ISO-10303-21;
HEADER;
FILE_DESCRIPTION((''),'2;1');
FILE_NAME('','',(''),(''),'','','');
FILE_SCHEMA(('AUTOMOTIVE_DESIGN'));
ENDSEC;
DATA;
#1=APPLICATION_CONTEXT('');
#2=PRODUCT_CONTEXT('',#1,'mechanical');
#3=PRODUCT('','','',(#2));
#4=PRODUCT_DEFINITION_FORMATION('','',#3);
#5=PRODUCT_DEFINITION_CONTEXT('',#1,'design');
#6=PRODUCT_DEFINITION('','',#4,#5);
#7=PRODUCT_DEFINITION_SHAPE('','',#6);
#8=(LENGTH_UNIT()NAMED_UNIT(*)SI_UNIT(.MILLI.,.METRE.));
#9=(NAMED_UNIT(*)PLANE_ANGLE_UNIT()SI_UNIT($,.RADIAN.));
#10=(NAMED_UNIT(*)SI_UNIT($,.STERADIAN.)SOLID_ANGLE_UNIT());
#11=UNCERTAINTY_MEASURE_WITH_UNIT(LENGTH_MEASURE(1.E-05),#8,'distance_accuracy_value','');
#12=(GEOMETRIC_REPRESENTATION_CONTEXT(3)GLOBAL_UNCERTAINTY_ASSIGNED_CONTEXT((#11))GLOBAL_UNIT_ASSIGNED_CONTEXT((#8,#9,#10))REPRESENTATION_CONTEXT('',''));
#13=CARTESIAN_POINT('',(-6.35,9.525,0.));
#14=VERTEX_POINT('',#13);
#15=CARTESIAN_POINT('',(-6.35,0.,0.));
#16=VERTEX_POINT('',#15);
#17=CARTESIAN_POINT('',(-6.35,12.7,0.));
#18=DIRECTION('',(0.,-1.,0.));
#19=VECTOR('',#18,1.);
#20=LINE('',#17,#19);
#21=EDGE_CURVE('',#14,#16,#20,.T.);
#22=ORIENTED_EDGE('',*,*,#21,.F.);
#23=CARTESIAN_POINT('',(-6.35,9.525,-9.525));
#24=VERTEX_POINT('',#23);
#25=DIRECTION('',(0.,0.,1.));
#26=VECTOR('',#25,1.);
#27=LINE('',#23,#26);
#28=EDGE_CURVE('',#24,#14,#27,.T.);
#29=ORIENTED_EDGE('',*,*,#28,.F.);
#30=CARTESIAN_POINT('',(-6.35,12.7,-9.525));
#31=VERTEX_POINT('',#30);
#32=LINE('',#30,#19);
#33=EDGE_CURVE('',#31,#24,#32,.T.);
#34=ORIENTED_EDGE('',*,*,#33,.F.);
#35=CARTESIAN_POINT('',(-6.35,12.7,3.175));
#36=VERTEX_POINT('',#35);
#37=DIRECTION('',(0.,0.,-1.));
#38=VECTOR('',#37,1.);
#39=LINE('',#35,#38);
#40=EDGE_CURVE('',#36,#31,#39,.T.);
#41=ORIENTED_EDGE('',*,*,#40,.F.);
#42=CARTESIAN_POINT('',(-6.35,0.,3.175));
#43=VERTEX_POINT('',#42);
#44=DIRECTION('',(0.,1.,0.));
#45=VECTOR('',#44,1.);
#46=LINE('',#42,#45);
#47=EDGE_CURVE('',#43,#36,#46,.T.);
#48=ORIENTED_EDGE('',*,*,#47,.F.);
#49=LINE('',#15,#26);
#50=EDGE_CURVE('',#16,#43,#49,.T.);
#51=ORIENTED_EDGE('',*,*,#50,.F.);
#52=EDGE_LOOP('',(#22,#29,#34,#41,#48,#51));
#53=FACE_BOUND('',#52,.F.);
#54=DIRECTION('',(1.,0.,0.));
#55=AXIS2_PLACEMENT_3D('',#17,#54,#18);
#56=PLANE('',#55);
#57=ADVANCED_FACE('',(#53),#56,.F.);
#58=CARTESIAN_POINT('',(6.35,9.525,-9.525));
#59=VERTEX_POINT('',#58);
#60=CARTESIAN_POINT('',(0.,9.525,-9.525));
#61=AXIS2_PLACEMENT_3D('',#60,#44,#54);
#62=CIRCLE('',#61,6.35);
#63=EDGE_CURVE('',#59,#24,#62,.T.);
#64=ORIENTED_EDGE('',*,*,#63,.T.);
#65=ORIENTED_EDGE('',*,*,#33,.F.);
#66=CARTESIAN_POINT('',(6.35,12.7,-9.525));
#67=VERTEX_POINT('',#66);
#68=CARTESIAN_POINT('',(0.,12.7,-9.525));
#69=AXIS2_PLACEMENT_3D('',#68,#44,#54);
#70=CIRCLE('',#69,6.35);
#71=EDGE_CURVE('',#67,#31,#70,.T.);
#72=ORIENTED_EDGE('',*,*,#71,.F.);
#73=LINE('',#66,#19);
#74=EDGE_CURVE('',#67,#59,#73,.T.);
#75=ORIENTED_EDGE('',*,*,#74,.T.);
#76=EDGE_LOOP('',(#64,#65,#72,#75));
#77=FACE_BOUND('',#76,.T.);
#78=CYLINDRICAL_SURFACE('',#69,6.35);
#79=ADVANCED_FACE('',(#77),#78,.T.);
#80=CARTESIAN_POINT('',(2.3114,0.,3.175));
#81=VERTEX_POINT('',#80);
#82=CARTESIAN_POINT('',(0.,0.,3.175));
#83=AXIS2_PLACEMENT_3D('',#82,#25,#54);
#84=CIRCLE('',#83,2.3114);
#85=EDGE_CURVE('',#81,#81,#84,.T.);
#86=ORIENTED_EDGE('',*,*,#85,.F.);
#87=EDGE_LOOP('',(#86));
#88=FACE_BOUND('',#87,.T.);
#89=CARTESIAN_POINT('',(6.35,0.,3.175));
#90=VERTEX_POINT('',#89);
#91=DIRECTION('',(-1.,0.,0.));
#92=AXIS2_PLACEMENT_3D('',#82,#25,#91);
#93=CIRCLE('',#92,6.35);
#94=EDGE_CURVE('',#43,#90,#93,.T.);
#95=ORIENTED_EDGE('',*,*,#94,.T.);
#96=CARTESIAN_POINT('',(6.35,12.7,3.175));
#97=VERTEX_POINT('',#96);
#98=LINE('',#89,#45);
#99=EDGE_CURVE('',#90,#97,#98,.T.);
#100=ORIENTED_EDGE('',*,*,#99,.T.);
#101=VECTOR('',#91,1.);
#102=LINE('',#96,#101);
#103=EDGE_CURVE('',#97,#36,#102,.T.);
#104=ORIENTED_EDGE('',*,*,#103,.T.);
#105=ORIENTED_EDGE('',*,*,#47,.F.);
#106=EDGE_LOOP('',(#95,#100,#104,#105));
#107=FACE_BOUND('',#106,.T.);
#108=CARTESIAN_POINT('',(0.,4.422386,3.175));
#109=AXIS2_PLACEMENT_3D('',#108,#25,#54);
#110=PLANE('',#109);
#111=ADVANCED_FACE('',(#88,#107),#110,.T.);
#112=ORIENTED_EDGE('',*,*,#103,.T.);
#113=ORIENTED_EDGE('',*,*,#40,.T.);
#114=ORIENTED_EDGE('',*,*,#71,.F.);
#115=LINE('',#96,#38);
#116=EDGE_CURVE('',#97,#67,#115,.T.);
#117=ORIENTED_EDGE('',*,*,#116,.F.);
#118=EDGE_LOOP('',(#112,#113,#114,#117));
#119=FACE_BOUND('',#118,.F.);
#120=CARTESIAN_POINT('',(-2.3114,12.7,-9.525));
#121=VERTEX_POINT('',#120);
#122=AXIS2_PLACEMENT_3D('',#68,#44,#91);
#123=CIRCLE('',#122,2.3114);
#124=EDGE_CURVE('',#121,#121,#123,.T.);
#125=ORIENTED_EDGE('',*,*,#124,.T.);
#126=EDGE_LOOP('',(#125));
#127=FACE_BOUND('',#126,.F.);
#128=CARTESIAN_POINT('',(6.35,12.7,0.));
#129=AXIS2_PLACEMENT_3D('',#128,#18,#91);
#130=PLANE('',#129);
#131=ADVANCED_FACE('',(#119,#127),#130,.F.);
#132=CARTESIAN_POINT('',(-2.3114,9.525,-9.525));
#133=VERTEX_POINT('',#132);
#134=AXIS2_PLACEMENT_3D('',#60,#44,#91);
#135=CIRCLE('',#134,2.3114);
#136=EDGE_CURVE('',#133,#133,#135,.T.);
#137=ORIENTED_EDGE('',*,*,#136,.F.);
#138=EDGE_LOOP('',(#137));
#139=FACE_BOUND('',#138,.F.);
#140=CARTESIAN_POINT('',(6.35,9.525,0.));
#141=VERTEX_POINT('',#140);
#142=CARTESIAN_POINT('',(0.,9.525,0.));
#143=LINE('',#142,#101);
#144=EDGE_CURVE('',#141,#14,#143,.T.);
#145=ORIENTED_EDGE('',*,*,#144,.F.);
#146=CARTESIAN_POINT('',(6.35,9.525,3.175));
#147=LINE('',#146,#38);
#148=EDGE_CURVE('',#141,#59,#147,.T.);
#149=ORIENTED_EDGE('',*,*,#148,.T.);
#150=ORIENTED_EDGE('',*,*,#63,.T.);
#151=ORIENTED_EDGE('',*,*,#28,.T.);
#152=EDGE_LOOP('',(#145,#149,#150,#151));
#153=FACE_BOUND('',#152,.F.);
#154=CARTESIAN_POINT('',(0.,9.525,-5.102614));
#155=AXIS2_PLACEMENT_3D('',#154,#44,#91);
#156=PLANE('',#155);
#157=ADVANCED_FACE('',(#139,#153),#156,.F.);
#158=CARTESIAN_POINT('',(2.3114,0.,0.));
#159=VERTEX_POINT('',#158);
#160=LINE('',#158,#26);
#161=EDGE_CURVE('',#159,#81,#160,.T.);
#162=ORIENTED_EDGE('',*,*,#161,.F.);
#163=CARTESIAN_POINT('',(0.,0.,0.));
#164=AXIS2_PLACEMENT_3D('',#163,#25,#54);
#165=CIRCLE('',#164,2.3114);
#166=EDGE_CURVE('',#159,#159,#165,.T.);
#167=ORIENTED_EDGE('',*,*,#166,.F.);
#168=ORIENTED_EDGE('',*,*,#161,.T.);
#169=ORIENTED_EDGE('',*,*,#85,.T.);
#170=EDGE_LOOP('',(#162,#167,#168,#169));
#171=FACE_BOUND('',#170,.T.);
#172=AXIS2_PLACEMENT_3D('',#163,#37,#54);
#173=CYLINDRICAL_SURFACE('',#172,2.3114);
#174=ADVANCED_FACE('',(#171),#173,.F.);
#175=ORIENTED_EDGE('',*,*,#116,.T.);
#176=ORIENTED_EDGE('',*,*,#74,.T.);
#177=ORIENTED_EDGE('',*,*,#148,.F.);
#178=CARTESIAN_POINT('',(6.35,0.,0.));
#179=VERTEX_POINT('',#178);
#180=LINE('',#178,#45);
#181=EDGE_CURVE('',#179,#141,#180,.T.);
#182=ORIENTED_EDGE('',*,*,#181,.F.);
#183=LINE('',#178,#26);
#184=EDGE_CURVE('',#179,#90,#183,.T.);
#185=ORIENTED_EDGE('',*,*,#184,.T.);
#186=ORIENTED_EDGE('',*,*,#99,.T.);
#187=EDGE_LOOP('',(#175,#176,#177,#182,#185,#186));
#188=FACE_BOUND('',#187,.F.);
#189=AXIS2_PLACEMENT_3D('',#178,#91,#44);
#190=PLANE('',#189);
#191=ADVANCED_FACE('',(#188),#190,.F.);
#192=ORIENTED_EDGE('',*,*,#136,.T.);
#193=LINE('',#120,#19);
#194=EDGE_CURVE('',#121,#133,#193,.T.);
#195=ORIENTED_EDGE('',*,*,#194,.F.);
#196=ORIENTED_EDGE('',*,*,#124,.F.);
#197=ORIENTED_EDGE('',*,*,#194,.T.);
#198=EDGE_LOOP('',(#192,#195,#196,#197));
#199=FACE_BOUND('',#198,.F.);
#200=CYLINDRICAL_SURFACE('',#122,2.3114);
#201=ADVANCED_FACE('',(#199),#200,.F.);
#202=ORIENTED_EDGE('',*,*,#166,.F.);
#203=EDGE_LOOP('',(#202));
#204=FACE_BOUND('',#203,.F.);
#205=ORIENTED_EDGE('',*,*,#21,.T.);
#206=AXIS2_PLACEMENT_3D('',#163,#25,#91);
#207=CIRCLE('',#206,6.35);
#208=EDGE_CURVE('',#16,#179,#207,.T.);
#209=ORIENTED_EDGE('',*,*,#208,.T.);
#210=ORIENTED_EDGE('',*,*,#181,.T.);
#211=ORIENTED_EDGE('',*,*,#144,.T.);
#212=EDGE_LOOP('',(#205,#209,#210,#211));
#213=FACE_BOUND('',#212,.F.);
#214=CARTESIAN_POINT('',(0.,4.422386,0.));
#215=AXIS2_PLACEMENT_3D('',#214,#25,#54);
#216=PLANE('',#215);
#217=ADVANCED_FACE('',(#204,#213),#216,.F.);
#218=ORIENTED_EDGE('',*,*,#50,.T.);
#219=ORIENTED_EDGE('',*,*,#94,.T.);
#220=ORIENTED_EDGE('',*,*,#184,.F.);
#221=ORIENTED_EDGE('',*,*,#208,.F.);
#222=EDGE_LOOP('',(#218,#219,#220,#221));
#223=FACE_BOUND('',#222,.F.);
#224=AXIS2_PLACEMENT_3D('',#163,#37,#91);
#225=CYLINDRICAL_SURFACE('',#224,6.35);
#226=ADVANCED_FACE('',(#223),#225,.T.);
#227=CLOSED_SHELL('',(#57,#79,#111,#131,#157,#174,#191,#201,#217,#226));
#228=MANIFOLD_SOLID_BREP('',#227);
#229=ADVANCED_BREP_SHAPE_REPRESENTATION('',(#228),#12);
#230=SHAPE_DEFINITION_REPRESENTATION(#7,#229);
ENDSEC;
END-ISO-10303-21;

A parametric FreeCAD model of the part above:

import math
import FreeCAD as App
import Part
import Sketcher

V = App.Vector
Q = App.Units.Quantity

doc = App.newDocument("Part")
body = doc.addObject("PartDesign::Body", "Body")

sketch1 = body.newObject("Sketcher::SketchObject", "Sketch")
sketch1.AttachmentSupport = (doc.getObject("XY_Plane"), [""])
sketch1.MapMode = "FlatFace"
sketch1.addGeometry(Part.LineSegment(V(-6.35, 12.7, 0), V(-6.35, 0, 0)), False)
sketch1.addGeometry(Part.ArcOfCircle(Part.Circle(V(0, 0, 0), V(0, 0, 1), 6.35), math.radians(180), math.radians(360)), False)
sketch1.addGeometry(Part.LineSegment(V(6.35, 0, 0), V(6.35, 12.7, 0)), False)
sketch1.addGeometry(Part.LineSegment(V(6.35, 12.7, 0), V(-6.35, 12.7, 0)), False)
sketch1.addGeometry(Part.Circle(V(0, 0, 0), V(0, 0, 1), 2.3114), False)
sketch1.addConstraint(Sketcher.Constraint("Tangent", 0, 2, 1, 1))
sketch1.addConstraint(Sketcher.Constraint("Tangent", 1, 2, 2, 1))
sketch1.addConstraint(Sketcher.Constraint("Coincident", 2, 2, 3, 1))
sketch1.addConstraint(Sketcher.Constraint("Coincident", 3, 2, 0, 1))
sketch1.addConstraint(Sketcher.Constraint("Vertical", 0))
sketch1.addConstraint(Sketcher.Constraint("Vertical", 2))
sketch1.addConstraint(Sketcher.Constraint("Horizontal", 3))
sketch1.addConstraint(Sketcher.Constraint("Coincident", 1, 3, -1, 1))
sketch1.addConstraint(Sketcher.Constraint("Coincident", 4, 3, -1, 1))
sketch1.addConstraint(Sketcher.Constraint("Equal", 3, 0))
sketch1.addConstraint(Sketcher.Constraint("Radius", 1, Q("0.25 in")))
sketch1.addConstraint(Sketcher.Constraint("Diameter", 4, Q("0.182 in")))
pad1 = body.newObject("PartDesign::Pad", "Pad")
pad1.Profile = sketch1
pad1.Length = Q("0.125 in")

sketch2 = body.newObject("Sketcher::SketchObject", "Sketch001")
sketch2.AttachmentSupport = (doc.getObject("XZ_Plane"), [""])
sketch2.MapMode = "FlatFace"
sketch2.AttachmentOffset = App.Placement(V(0, 0, -0.5 * 25.4), App.Rotation())
sketch2.addGeometry(Part.LineSegment(V(6.35, 3.175, 0), V(6.35, -9.525, 0)), False)
sketch2.addGeometry(Part.ArcOfCircle(Part.Circle(V(0, -9.525, 0), V(0, 0, 1), 6.35), math.radians(180), math.radians(360)), False)
sketch2.addGeometry(Part.LineSegment(V(-6.35, -9.525, 0), V(-6.35, 3.175, 0)), False)
sketch2.addGeometry(Part.LineSegment(V(-6.35, 3.175, 0), V(6.35, 3.175, 0)), False)
sketch2.addGeometry(Part.Circle(V(0, -9.525, 0), V(0, 0, 1), 2.3114), False)
sketch2.addConstraint(Sketcher.Constraint("Tangent", 0, 2, 1, 2))
sketch2.addConstraint(Sketcher.Constraint("Tangent", 1, 1, 2, 1))
sketch2.addConstraint(Sketcher.Constraint("Coincident", 2, 2, 3, 1))
sketch2.addConstraint(Sketcher.Constraint("Coincident", 3, 2, 0, 1))
sketch2.addConstraint(Sketcher.Constraint("Vertical", 0))
sketch2.addConstraint(Sketcher.Constraint("Vertical", 2))
sketch2.addConstraint(Sketcher.Constraint("Horizontal", 3))
sketch2.addConstraint(Sketcher.Constraint("Coincident", 4, 3, 1, 3))
sketch2.addConstraint(Sketcher.Constraint("PointOnObject", 1, 3, -2))
sketch2.addConstraint(Sketcher.Constraint("Equal", 3, 0))
sketch2.addConstraint(Sketcher.Constraint("Radius", 1, Q("0.25 in")))
sketch2.addConstraint(Sketcher.Constraint("Diameter", 4, Q("0.182 in")))
sketch2.addConstraint(Sketcher.Constraint("DistanceY", 1, 3, -1, 1, Q("0.375 in")))
pad2 = body.newObject("PartDesign::Pad", "Pad001")
pad2.Profile = sketch2
pad2.Length = Q("0.125 in")

doc.recompute()
